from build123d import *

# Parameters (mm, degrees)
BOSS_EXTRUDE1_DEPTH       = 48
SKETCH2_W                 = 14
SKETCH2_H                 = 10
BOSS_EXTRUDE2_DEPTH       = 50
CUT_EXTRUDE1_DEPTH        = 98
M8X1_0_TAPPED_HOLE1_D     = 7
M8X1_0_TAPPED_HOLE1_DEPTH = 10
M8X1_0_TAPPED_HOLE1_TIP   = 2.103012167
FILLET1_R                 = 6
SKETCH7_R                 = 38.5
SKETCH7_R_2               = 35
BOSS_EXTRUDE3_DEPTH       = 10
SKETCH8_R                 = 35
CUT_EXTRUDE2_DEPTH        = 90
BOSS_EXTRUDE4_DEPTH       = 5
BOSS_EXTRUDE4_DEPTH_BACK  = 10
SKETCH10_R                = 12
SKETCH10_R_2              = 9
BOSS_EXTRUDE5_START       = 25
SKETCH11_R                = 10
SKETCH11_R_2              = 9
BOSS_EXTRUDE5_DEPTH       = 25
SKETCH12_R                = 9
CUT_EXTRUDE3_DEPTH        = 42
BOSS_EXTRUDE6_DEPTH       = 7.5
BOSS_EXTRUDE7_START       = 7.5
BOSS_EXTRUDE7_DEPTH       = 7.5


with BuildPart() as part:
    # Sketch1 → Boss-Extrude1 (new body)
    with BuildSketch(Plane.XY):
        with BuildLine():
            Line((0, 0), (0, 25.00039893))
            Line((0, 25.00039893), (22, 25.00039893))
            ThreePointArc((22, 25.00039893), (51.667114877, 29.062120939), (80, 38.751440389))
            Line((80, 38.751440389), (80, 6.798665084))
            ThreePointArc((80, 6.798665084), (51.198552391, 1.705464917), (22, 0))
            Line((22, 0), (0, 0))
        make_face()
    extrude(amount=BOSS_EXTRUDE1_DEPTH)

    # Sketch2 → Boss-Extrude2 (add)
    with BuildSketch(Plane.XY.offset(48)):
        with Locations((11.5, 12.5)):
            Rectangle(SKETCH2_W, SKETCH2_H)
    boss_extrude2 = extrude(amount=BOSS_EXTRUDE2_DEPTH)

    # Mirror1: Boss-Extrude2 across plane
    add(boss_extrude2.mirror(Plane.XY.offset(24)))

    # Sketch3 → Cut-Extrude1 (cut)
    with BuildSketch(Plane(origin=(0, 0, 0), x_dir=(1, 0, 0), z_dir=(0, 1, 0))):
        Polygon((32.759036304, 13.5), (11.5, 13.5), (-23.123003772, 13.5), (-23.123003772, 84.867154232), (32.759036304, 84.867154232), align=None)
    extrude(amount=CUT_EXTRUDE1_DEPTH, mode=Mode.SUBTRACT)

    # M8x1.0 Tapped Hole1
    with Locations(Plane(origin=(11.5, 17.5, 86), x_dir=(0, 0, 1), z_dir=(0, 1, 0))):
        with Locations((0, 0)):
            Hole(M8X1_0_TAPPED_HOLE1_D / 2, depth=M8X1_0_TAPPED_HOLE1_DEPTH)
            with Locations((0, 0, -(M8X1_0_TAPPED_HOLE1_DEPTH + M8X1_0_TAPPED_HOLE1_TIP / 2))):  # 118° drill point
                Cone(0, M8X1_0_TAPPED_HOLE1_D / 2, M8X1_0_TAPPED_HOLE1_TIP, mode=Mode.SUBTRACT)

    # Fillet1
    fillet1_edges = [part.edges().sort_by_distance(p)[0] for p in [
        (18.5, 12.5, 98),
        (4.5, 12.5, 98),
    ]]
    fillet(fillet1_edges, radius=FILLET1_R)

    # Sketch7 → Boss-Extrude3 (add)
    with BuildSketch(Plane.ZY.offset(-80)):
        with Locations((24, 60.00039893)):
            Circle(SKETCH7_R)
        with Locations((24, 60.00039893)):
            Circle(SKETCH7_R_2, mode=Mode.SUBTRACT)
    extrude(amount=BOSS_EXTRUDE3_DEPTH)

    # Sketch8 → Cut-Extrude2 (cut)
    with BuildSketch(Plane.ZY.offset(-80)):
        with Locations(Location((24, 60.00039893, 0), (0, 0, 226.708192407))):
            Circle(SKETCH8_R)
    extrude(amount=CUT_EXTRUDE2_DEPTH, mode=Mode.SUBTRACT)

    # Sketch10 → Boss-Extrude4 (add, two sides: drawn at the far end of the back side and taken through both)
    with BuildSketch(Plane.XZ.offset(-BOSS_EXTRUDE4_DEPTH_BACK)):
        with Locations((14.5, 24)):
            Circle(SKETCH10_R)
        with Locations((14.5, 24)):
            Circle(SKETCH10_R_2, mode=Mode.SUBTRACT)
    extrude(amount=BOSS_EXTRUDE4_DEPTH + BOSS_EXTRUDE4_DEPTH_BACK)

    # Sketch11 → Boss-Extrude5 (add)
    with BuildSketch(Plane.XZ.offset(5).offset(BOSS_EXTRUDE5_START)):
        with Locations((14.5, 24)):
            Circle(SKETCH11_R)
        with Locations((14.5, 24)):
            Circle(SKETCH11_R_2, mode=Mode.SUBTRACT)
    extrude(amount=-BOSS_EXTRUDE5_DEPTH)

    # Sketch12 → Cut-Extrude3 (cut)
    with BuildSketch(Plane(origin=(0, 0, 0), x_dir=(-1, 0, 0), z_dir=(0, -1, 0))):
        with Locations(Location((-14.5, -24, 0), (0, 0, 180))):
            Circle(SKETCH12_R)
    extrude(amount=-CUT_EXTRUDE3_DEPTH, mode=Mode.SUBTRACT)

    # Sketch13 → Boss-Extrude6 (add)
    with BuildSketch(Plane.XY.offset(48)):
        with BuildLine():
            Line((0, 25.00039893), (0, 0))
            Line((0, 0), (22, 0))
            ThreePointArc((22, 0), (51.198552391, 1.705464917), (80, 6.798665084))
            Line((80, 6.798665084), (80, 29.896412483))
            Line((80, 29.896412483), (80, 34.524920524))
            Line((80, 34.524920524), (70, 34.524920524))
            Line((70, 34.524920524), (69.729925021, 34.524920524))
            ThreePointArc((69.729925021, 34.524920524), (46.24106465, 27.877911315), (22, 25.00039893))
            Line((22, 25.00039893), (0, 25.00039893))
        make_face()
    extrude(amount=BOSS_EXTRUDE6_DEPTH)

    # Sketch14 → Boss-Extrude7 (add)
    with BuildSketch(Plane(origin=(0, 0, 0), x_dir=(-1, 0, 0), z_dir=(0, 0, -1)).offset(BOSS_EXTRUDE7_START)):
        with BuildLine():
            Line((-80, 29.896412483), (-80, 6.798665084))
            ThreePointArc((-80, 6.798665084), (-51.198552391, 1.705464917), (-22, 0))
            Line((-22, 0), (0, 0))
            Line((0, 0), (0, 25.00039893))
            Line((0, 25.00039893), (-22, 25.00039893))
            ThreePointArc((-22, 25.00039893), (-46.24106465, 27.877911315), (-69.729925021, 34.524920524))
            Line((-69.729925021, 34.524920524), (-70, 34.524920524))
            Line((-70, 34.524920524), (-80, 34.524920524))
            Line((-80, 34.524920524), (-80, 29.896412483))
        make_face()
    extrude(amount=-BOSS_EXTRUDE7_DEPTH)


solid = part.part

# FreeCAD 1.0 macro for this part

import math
import FreeCAD as App
import Part
import Sketcher

V = App.Vector
Q = App.Units.Quantity


def edges_at(feature, points):
    """Names of the edges that pass closest to the given points."""
    edges = feature.Shape.Edges
    near = lambda p: min(range(len(edges)), key=lambda i: edges[i].distToShape(Part.Vertex(*p))[0])
    return sorted({f"Edge{near(p) + 1}" for p in points})


def add_polygon(sketch, points):
    """Adds a closed chain of lines whose ends are joined by coincident constraints."""
    first, n = sketch.GeometryCount, len(points)
    for a, b in zip(points, points[1:] + points[:1]):
        sketch.addGeometry(Part.LineSegment(App.Vector(*a, 0), App.Vector(*b, 0)), False)
    for i in range(n):
        sketch.addConstraint(Sketcher.Constraint("Coincident", first + i, 2, first + (i + 1) % n, 1))

doc = App.newDocument("Part")
body = doc.addObject("PartDesign::Body", "Body")

# Sketch on XY plane
sketch1 = body.newObject("Sketcher::SketchObject", "Sketch")
sketch1.AttachmentSupport = (doc.getObject("XY_Plane"), [""])
sketch1.MapMode = "FlatFace"
sketch1.addGeometry(Part.LineSegment(V(0, 25, 0), V(0, 0, 0)), False)
sketch1.addGeometry(Part.LineSegment(V(0, 0, 0), V(22, 0, 0)), False)
sketch1.addGeometry(Part.ArcOfCircle(Part.Circle(V(22, 251, 0), V(0, 0, 1), 251), math.radians(-90), math.radians(-76.63)), False)
sketch1.addGeometry(Part.LineSegment(V(80, 7, 0), V(80, 39, 0)), False)
sketch1.addGeometry(Part.ArcOfCircle(Part.Circle(V(16, 180, 0), V(0, 0, 1), 155), math.radians(-88), math.radians(-66)), False)
sketch1.addGeometry(Part.LineSegment(V(22, 25, 0), V(0, 25, 0)), False)
sketch1.addConstraint(Sketcher.Constraint("Coincident", 0, 2, 1, 1))
sketch1.addConstraint(Sketcher.Constraint("Tangent", 1, 2, 2, 1))
sketch1.addConstraint(Sketcher.Constraint("Coincident", 2, 2, 3, 1))
sketch1.addConstraint(Sketcher.Constraint("Coincident", 3, 2, 4, 2))
sketch1.addConstraint(Sketcher.Constraint("Coincident", 4, 1, 5, 1))
sketch1.addConstraint(Sketcher.Constraint("Coincident", 5, 2, 0, 1))
sketch1.addConstraint(Sketcher.Constraint("Vertical", 0))
sketch1.addConstraint(Sketcher.Constraint("Horizontal", 1))
sketch1.addConstraint(Sketcher.Constraint("Vertical", 3))
sketch1.addConstraint(Sketcher.Constraint("Horizontal", 5))
sketch1.addConstraint(Sketcher.Constraint("Coincident", 0, 2, -1, 1))
sketch1.addConstraint(Sketcher.Constraint("Vertical", 1, 2, 4, 1))
sketch1.addConstraint(Sketcher.Constraint("DistanceX", 1, 1, 1, 2, Q("22 mm")))
sketch1.addConstraint(Sketcher.Constraint("DistanceX", -1, 1, 2, 2, Q("80 mm")))
sketch1.addConstraint(Sketcher.Constraint("Radius", 2, Q("250.800841 mm")))
sketch1.addConstraint(Sketcher.Constraint("Radius", 4, Q("155.03067 mm")))
sketch1.addConstraint(Sketcher.Constraint("DistanceY", 0, 2, 0, 1, Q("25.000399 mm")))
sketch1.addConstraint(Sketcher.Constraint("DistanceY", 3, 2, 2, 3, Q("212.049401 mm")))
pad1 = body.newObject("PartDesign::Pad", "Pad")
pad1.Profile = sketch1
pad1.Length = 48

# Sketch on XY plane
sketch2 = body.newObject("Sketcher::SketchObject", "Sketch001")
sketch2.AttachmentSupport = (doc.getObject("XY_Plane"), [""])
sketch2.MapMode = "FlatFace"
sketch2.AttachmentOffset = App.Placement(V(0, 0, 48), App.Rotation())
add_polygon(sketch2, [(4, 18), (4, 8), (18, 8), (18, 18)])  # lines 0-3
sketch2.addConstraint(Sketcher.Constraint("Vertical", 0))
sketch2.addConstraint(Sketcher.Constraint("Horizontal", 1))
sketch2.addConstraint(Sketcher.Constraint("Vertical", 2))
sketch2.addConstraint(Sketcher.Constraint("Horizontal", 3))
sketch2.addConstraint(Sketcher.Constraint("DistanceX", 1, 1, 1, 2, Q("14 mm")))
sketch2.addConstraint(Sketcher.Constraint("DistanceY", 0, 2, 0, 1, Q("10 mm")))
sketch2.addConstraint(Sketcher.Constraint("DistanceX", -1, 1, 0, 2, Q("4.5 mm")))
sketch2.addConstraint(Sketcher.Constraint("DistanceY", -1, 1, 0, 2, Q("7.5 mm")))
pad2 = body.newObject("PartDesign::Pad", "Pad001")
pad2.Profile = sketch2
pad2.Length = 50
doc.recompute()

datumplane = body.newObject("PartDesign::Plane", "DatumPlane")
datumplane.AttachmentSupport = (doc.getObject("XY_Plane"), [""])
datumplane.MapMode = "FlatFace"
datumplane.AttachmentOffset = App.Placement(V(0, 0, 24), App.Rotation())
mirrored = body.newObject("PartDesign::Mirrored", "Mirrored")
mirrored.Originals = [pad2]
mirrored.MirrorPlane = (datumplane, [""])
body.Tip = mirrored

# Sketch on XZ plane
sketch3 = body.newObject("Sketcher::SketchObject", "Sketch002")
sketch3.AttachmentSupport = (doc.getObject("XZ_Plane"), [""])
sketch3.MapMode = "FlatFace"
add_polygon(sketch3, [(-23, -14), (33, -14), (33, -85), (-23, -85)])  # lines 0-3
sketch3.addConstraint(Sketcher.Constraint("Horizontal", 0))
sketch3.addConstraint(Sketcher.Constraint("Vertical", 1))
sketch3.addConstraint(Sketcher.Constraint("Horizontal", 2))
sketch3.addConstraint(Sketcher.Constraint("Vertical", 3))
sketch3.addConstraint(Sketcher.Constraint("DistanceY", 0, 2, -1, 1, Q("13.5 mm")))
sketch3.addConstraint(Sketcher.Constraint("DistanceX", 0, 1, 0, 2, Q("55.88204 mm")))
sketch3.addConstraint(Sketcher.Constraint("DistanceY", 1, 2, 1, 1, Q("71.367154 mm")))
sketch3.addConstraint(Sketcher.Constraint("DistanceX", -1, 1, 0, 2, Q("32.759036 mm")))
pocket1 = body.newObject("PartDesign::Pocket", "Pocket")
pocket1.Profile = sketch3
pocket1.Length = 98

# Sketch on XZ plane
sketch4 = body.newObject("Sketcher::SketchObject", "Sketch003")
sketch4.AttachmentSupport = (doc.getObject("XZ_Plane"), [""])
sketch4.MapMode = "FlatFace"
sketch4.AttachmentOffset = App.Placement(V(0, 0, -17.5), App.Rotation())
sketch4.addGeometry(Part.Circle(V(11.5, 86, 0), V(0, 0, 1), 3.5), False)
sketch4.addConstraint(Sketcher.Constraint("Diameter", 0, Q("7 mm")))
sketch4.addConstraint(Sketcher.Constraint("DistanceY", -1, 1, 0, 3, Q("86 mm")))
sketch4.addConstraint(Sketcher.Constraint("DistanceX", -1, 1, 0, 3, Q("11.5 mm")))
doc.recompute()
hole = body.newObject("PartDesign::Hole", "Hole")
hole.Profile = sketch4
hole.ThreadType = "None"
hole.Diameter = 7
hole.DepthType = "Dimension"
hole.Depth = 10
hole.DrillPoint = "Angled"
hole.DrillPointAngle = 118
hole.Reversed = True
doc.recompute()

fillet = body.newObject("PartDesign::Fillet", "Fillet")
fillet.Base = (hole, edges_at(hole, [(18.5, 12.5, 98), (4.5, 12.5, 98)]))
fillet.Radius = 6

# Sketch on YZ plane
sketch5 = body.newObject("Sketcher::SketchObject", "Sketch004")
sketch5.AttachmentSupport = (doc.getObject("YZ_Plane"), [""])
sketch5.MapMode = "FlatFace"
sketch5.AttachmentOffset = App.Placement(V(0, 0, 80), App.Rotation())
sketch5.addGeometry(Part.Circle(V(60, 24, 0), V(0, 0, 1), 38), False)
sketch5.addGeometry(Part.Circle(V(60, 24, 0), V(0, 0, 1), 35), False)
sketch5.addConstraint(Sketcher.Constraint("Coincident", 1, 3, 0, 3))
sketch5.addConstraint(Sketcher.Constraint("Diameter", 0, Q("77 mm")))
sketch5.addConstraint(Sketcher.Constraint("Diameter", 1, Q("70 mm")))
sketch5.addConstraint(Sketcher.Constraint("DistanceY", -1, 1, 0, 3, Q("24 mm")))
sketch5.addConstraint(Sketcher.Constraint("DistanceX", -1, 1, 0, 3, Q("60.000399 mm")))
pad3 = body.newObject("PartDesign::Pad", "Pad002")
pad3.Profile = sketch5
pad3.Length = 10
pad3.Reversed = True

# Sketch on YZ plane
sketch6 = body.newObject("Sketcher::SketchObject", "Sketch005")
sketch6.AttachmentSupport = (doc.getObject("YZ_Plane"), [""])
sketch6.MapMode = "FlatFace"
sketch6.AttachmentOffset = App.Placement(V(0, 0, 80), App.Rotation())
sketch6.addGeometry(Part.Circle(V(60, 24, 0), V(0, 0, 1), 35), False)
sketch6.addConstraint(Sketcher.Constraint("Diameter", 0, Q("70 mm")))
sketch6.addConstraint(Sketcher.Constraint("DistanceY", -1, 1, 0, 3, Q("24 mm")))
sketch6.addConstraint(Sketcher.Constraint("DistanceX", -1, 1, 0, 3, Q("60.000399 mm")))
pocket2 = body.newObject("PartDesign::Pocket", "Pocket001")
pocket2.Profile = sketch6
pocket2.Length = 90

# Sketch on XZ plane
sketch7 = body.newObject("Sketcher::SketchObject", "Sketch006")
sketch7.AttachmentSupport = (doc.getObject("XZ_Plane"), [""])
sketch7.MapMode = "FlatFace"
sketch7.addGeometry(Part.Circle(V(14, 24, 0), V(0, 0, 1), 12), False)
sketch7.addGeometry(Part.Circle(V(14, 24, 0), V(0, 0, 1), 9), False)
sketch7.addConstraint(Sketcher.Constraint("Coincident", 1, 3, 0, 3))
sketch7.addConstraint(Sketcher.Constraint("Diameter", 0, Q("24 mm")))
sketch7.addConstraint(Sketcher.Constraint("Diameter", 1, Q("18 mm")))
sketch7.addConstraint(Sketcher.Constraint("DistanceY", -1, 1, 0, 3, Q("24 mm")))
sketch7.addConstraint(Sketcher.Constraint("DistanceX", -1, 1, 0, 3, Q("14.5 mm")))
pad4 = body.newObject("PartDesign::Pad", "Pad003")
pad4.Profile = sketch7
pad4.Type = "TwoLengths"
pad4.Length = 5
pad4.Length2 = 10

# Sketch on XZ plane
sketch8 = body.newObject("Sketcher::SketchObject", "Sketch007")
sketch8.AttachmentSupport = (doc.getObject("XZ_Plane"), [""])
sketch8.MapMode = "FlatFace"
sketch8.AttachmentOffset = App.Placement(V(0, 0, 30), App.Rotation())
sketch8.addGeometry(Part.Circle(V(14, 24, 0), V(0, 0, 1), 10), False)
sketch8.addGeometry(Part.Circle(V(14, 24, 0), V(0, 0, 1), 9), False)
sketch8.addConstraint(Sketcher.Constraint("Coincident", 1, 3, 0, 3))
sketch8.addConstraint(Sketcher.Constraint("Diameter", 0, Q("20 mm")))
sketch8.addConstraint(Sketcher.Constraint("Diameter", 1, Q("18 mm")))
sketch8.addConstraint(Sketcher.Constraint("DistanceY", -1, 1, 0, 3, Q("24 mm")))
sketch8.addConstraint(Sketcher.Constraint("DistanceX", -1, 1, 0, 3, Q("14.5 mm")))
pad5 = body.newObject("PartDesign::Pad", "Pad004")
pad5.Profile = sketch8
pad5.Length = 25
pad5.Reversed = True

# Sketch on XZ plane
sketch9 = body.newObject("Sketcher::SketchObject", "Sketch008")
sketch9.AttachmentSupport = (doc.getObject("XZ_Plane"), [""])
sketch9.MapMode = "FlatFace"
sketch9.addGeometry(Part.Circle(V(14, 24, 0), V(0, 0, 1), 9), False)
sketch9.addConstraint(Sketcher.Constraint("Diameter", 0, Q("18 mm")))
sketch9.addConstraint(Sketcher.Constraint("DistanceY", -1, 1, 0, 3, Q("24 mm")))
sketch9.addConstraint(Sketcher.Constraint("DistanceX", -1, 1, 0, 3, Q("14.5 mm")))
pocket3 = body.newObject("PartDesign::Pocket", "Pocket002")
pocket3.Profile = sketch9
pocket3.Length = 42

# Sketch on XY plane
sketch10 = body.newObject("Sketcher::SketchObject", "Sketch009")
sketch10.AttachmentSupport = (doc.getObject("XY_Plane"), [""])
sketch10.MapMode = "FlatFace"
sketch10.AttachmentOffset = App.Placement(V(0, 0, 48), App.Rotation())
sketch10.addGeometry(Part.LineSegment(V(0, 25, 0), V(0, 0, 0)), False)
sketch10.addGeometry(Part.LineSegment(V(0, 0, 0), V(22, 0, 0)), False)
sketch10.addGeometry(Part.ArcOfCircle(Part.Circle(V(22, 251, 0), V(0, 0, 1), 251), math.radians(-90), math.radians(-76.63)), False)
sketch10.addGeometry(Part.LineSegment(V(80, 7, 0), V(80, 35, 0)), False)
sketch10.addGeometry(Part.LineSegment(V(80, 35, 0), V(70, 35, 0)), False)
sketch10.addGeometry(Part.ArcOfCircle(Part.Circle(V(16, 180, 0), V(0, 0, 1), 155), math.radians(-87.75), math.radians(-69.68)), False)
sketch10.addGeometry(Part.LineSegment(V(22, 25, 0), V(0, 25, 0)), False)
sketch10.addConstraint(Sketcher.Constraint("Coincident", 0, 2, 1, 1))
sketch10.addConstraint(Sketcher.Constraint("Tangent", 1, 2, 2, 1))
sketch10.addConstraint(Sketcher.Constraint("Coincident", 2, 2, 3, 1))
sketch10.addConstraint(Sketcher.Constraint("Coincident", 3, 2, 4, 1))
sketch10.addConstraint(Sketcher.Constraint("Coincident", 4, 2, 5, 2))
sketch10.addConstraint(Sketcher.Constraint("Coincident", 5, 1, 6, 1))
sketch10.addConstraint(Sketcher.Constraint("Coincident", 6, 2, 0, 1))
sketch10.addConstraint(Sketcher.Constraint("Vertical", 0))
sketch10.addConstraint(Sketcher.Constraint("Horizontal", 1))
sketch10.addConstraint(Sketcher.Constraint("Vertical", 3))
sketch10.addConstraint(Sketcher.Constraint("Horizontal", 4))
sketch10.addConstraint(Sketcher.Constraint("Horizontal", 6))
sketch10.addConstraint(Sketcher.Constraint("Coincident", 0, 2, -1, 1))
sketch10.addConstraint(Sketcher.Constraint("Vertical", 1, 2, 5, 1))
sketch10.addConstraint(Sketcher.Constraint("DistanceX", 1, 1, 1, 2, Q("22 mm")))
sketch10.addConstraint(Sketcher.Constraint("DistanceX", -1, 1, 2, 2, Q("80 mm")))
sketch10.addConstraint(Sketcher.Constraint("Radius", 2, Q("250.800841 mm")))
sketch10.addConstraint(Sketcher.Constraint("Radius", 5, Q("155.03067 mm")))
sketch10.addConstraint(Sketcher.Constraint("DistanceY", 0, 2, 0, 1, Q("25.000399 mm")))
sketch10.addConstraint(Sketcher.Constraint("DistanceX", 4, 2, 4, 1, Q("10.270075 mm")))
sketch10.addConstraint(Sketcher.Constraint("DistanceY", 3, 1, 3, 2, Q("27.726255 mm")))
pad6 = body.newObject("PartDesign::Pad", "Pad005")
pad6.Profile = sketch10
pad6.Length = 7.5

# Sketch on XY plane
sketch11 = body.newObject("Sketcher::SketchObject", "Sketch010")
sketch11.AttachmentSupport = (doc.getObject("XY_Plane"), [""])
sketch11.MapMode = "FlatFace"
sketch11.AttachmentOffset = App.Placement(V(0, 0, -7.5), App.Rotation())
sketch11.addGeometry(Part.ArcOfCircle(Part.Circle(V(22, 251, 0), V(0, 0, 1), 251), math.radians(-90), math.radians(-76.63)), False)
sketch11.addGeometry(Part.LineSegment(V(22, 0, 0), V(0, 0, 0)), False)
sketch11.addGeometry(Part.LineSegment(V(0, 0, 0), V(0, 25, 0)), False)
sketch11.addGeometry(Part.LineSegment(V(0, 25, 0), V(22, 25, 0)), False)
sketch11.addGeometry(Part.ArcOfCircle(Part.Circle(V(16, 180, 0), V(0, 0, 1), 155), math.radians(-87.75), math.radians(-69.68)), False)
sketch11.addGeometry(Part.LineSegment(V(70, 35, 0), V(80, 35, 0)), False)
sketch11.addGeometry(Part.LineSegment(V(80, 35, 0), V(80, 7, 0)), False)
sketch11.addConstraint(Sketcher.Constraint("Tangent", 0, 1, 1, 1))
sketch11.addConstraint(Sketcher.Constraint("Coincident", 1, 2, 2, 1))
sketch11.addConstraint(Sketcher.Constraint("Coincident", 2, 2, 3, 1))
sketch11.addConstraint(Sketcher.Constraint("Coincident", 3, 2, 4, 1))
sketch11.addConstraint(Sketcher.Constraint("Coincident", 4, 2, 5, 1))
sketch11.addConstraint(Sketcher.Constraint("Coincident", 5, 2, 6, 1))
sketch11.addConstraint(Sketcher.Constraint("Coincident", 6, 2, 0, 2))
sketch11.addConstraint(Sketcher.Constraint("Horizontal", 1))
sketch11.addConstraint(Sketcher.Constraint("Vertical", 2))
sketch11.addConstraint(Sketcher.Constraint("Horizontal", 3))
sketch11.addConstraint(Sketcher.Constraint("Horizontal", 5))
sketch11.addConstraint(Sketcher.Constraint("Vertical", 6))
sketch11.addConstraint(Sketcher.Constraint("Coincident", 1, 2, -1, 1))
sketch11.addConstraint(Sketcher.Constraint("Vertical", 0, 1, 3, 2))
sketch11.addConstraint(Sketcher.Constraint("DistanceX", 1, 2, 1, 1, Q("22 mm")))
sketch11.addConstraint(Sketcher.Constraint("DistanceX", -1, 1, 5, 2, Q("80 mm")))
sketch11.addConstraint(Sketcher.Constraint("Radius", 0, Q("250.800841 mm")))
sketch11.addConstraint(Sketcher.Constraint("Radius", 4, Q("155.03067 mm")))
sketch11.addConstraint(Sketcher.Constraint("DistanceY", 2, 1, 2, 2, Q("25.000399 mm")))
sketch11.addConstraint(Sketcher.Constraint("DistanceX", 5, 1, 5, 2, Q("10.270075 mm")))
sketch11.addConstraint(Sketcher.Constraint("DistanceY", 6, 2, 6, 1, Q("27.726255 mm")))
pad7 = body.newObject("PartDesign::Pad", "Pad006")
pad7.Profile = sketch11
pad7.Length = 7.5

doc.recompute()
